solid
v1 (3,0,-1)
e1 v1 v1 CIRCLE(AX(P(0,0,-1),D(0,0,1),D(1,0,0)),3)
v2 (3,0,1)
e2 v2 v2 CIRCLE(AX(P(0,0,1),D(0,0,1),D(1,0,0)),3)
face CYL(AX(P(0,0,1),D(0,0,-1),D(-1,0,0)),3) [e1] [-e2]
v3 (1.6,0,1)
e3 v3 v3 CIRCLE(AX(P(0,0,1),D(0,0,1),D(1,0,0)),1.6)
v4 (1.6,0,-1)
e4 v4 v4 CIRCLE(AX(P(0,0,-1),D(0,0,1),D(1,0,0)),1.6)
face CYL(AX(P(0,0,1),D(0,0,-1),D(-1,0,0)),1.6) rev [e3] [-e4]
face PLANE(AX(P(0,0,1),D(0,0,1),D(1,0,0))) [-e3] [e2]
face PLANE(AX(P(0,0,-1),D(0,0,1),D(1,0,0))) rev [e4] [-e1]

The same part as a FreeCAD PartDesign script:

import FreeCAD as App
import Part
import Sketcher
from FreeCAD import Vector

doc = App.newDocument("Part")
body = doc.addObject("PartDesign::Body", "Body")

# Sketch on XY plane
sketch1 = doc.addObject("Sketcher::SketchObject", "Sketch")
body.addObject(sketch1)
sketch1.AttachmentSupport = (doc.XY_Plane, [""])
sketch1.MapMode = "FlatFace"
sketch1.addGeometry([
    Part.Circle(Vector(0, 0, 0), Vector(0, 0, 1), 3),
    Part.Circle(Vector(0, 0, 0), Vector(0, 0, 1), 1.6),
], False)
sketch1.addConstraint([
    Sketcher.Constraint("Coincident", 0, 3, -1, 1),
    Sketcher.Constraint("Coincident", 1, 3, -1, 1),
    Sketcher.Constraint("Diameter", 0, 6.0),
    Sketcher.Constraint("Diameter", 1, 3.2),
])
pad1 = doc.addObject("PartDesign::Pad", "Pad")
body.addObject(pad1)
pad1.Profile = sketch1
pad1.Type = "TwoLengths"
pad1.Length = 1
pad1.Length2 = 1

doc.recompute()
